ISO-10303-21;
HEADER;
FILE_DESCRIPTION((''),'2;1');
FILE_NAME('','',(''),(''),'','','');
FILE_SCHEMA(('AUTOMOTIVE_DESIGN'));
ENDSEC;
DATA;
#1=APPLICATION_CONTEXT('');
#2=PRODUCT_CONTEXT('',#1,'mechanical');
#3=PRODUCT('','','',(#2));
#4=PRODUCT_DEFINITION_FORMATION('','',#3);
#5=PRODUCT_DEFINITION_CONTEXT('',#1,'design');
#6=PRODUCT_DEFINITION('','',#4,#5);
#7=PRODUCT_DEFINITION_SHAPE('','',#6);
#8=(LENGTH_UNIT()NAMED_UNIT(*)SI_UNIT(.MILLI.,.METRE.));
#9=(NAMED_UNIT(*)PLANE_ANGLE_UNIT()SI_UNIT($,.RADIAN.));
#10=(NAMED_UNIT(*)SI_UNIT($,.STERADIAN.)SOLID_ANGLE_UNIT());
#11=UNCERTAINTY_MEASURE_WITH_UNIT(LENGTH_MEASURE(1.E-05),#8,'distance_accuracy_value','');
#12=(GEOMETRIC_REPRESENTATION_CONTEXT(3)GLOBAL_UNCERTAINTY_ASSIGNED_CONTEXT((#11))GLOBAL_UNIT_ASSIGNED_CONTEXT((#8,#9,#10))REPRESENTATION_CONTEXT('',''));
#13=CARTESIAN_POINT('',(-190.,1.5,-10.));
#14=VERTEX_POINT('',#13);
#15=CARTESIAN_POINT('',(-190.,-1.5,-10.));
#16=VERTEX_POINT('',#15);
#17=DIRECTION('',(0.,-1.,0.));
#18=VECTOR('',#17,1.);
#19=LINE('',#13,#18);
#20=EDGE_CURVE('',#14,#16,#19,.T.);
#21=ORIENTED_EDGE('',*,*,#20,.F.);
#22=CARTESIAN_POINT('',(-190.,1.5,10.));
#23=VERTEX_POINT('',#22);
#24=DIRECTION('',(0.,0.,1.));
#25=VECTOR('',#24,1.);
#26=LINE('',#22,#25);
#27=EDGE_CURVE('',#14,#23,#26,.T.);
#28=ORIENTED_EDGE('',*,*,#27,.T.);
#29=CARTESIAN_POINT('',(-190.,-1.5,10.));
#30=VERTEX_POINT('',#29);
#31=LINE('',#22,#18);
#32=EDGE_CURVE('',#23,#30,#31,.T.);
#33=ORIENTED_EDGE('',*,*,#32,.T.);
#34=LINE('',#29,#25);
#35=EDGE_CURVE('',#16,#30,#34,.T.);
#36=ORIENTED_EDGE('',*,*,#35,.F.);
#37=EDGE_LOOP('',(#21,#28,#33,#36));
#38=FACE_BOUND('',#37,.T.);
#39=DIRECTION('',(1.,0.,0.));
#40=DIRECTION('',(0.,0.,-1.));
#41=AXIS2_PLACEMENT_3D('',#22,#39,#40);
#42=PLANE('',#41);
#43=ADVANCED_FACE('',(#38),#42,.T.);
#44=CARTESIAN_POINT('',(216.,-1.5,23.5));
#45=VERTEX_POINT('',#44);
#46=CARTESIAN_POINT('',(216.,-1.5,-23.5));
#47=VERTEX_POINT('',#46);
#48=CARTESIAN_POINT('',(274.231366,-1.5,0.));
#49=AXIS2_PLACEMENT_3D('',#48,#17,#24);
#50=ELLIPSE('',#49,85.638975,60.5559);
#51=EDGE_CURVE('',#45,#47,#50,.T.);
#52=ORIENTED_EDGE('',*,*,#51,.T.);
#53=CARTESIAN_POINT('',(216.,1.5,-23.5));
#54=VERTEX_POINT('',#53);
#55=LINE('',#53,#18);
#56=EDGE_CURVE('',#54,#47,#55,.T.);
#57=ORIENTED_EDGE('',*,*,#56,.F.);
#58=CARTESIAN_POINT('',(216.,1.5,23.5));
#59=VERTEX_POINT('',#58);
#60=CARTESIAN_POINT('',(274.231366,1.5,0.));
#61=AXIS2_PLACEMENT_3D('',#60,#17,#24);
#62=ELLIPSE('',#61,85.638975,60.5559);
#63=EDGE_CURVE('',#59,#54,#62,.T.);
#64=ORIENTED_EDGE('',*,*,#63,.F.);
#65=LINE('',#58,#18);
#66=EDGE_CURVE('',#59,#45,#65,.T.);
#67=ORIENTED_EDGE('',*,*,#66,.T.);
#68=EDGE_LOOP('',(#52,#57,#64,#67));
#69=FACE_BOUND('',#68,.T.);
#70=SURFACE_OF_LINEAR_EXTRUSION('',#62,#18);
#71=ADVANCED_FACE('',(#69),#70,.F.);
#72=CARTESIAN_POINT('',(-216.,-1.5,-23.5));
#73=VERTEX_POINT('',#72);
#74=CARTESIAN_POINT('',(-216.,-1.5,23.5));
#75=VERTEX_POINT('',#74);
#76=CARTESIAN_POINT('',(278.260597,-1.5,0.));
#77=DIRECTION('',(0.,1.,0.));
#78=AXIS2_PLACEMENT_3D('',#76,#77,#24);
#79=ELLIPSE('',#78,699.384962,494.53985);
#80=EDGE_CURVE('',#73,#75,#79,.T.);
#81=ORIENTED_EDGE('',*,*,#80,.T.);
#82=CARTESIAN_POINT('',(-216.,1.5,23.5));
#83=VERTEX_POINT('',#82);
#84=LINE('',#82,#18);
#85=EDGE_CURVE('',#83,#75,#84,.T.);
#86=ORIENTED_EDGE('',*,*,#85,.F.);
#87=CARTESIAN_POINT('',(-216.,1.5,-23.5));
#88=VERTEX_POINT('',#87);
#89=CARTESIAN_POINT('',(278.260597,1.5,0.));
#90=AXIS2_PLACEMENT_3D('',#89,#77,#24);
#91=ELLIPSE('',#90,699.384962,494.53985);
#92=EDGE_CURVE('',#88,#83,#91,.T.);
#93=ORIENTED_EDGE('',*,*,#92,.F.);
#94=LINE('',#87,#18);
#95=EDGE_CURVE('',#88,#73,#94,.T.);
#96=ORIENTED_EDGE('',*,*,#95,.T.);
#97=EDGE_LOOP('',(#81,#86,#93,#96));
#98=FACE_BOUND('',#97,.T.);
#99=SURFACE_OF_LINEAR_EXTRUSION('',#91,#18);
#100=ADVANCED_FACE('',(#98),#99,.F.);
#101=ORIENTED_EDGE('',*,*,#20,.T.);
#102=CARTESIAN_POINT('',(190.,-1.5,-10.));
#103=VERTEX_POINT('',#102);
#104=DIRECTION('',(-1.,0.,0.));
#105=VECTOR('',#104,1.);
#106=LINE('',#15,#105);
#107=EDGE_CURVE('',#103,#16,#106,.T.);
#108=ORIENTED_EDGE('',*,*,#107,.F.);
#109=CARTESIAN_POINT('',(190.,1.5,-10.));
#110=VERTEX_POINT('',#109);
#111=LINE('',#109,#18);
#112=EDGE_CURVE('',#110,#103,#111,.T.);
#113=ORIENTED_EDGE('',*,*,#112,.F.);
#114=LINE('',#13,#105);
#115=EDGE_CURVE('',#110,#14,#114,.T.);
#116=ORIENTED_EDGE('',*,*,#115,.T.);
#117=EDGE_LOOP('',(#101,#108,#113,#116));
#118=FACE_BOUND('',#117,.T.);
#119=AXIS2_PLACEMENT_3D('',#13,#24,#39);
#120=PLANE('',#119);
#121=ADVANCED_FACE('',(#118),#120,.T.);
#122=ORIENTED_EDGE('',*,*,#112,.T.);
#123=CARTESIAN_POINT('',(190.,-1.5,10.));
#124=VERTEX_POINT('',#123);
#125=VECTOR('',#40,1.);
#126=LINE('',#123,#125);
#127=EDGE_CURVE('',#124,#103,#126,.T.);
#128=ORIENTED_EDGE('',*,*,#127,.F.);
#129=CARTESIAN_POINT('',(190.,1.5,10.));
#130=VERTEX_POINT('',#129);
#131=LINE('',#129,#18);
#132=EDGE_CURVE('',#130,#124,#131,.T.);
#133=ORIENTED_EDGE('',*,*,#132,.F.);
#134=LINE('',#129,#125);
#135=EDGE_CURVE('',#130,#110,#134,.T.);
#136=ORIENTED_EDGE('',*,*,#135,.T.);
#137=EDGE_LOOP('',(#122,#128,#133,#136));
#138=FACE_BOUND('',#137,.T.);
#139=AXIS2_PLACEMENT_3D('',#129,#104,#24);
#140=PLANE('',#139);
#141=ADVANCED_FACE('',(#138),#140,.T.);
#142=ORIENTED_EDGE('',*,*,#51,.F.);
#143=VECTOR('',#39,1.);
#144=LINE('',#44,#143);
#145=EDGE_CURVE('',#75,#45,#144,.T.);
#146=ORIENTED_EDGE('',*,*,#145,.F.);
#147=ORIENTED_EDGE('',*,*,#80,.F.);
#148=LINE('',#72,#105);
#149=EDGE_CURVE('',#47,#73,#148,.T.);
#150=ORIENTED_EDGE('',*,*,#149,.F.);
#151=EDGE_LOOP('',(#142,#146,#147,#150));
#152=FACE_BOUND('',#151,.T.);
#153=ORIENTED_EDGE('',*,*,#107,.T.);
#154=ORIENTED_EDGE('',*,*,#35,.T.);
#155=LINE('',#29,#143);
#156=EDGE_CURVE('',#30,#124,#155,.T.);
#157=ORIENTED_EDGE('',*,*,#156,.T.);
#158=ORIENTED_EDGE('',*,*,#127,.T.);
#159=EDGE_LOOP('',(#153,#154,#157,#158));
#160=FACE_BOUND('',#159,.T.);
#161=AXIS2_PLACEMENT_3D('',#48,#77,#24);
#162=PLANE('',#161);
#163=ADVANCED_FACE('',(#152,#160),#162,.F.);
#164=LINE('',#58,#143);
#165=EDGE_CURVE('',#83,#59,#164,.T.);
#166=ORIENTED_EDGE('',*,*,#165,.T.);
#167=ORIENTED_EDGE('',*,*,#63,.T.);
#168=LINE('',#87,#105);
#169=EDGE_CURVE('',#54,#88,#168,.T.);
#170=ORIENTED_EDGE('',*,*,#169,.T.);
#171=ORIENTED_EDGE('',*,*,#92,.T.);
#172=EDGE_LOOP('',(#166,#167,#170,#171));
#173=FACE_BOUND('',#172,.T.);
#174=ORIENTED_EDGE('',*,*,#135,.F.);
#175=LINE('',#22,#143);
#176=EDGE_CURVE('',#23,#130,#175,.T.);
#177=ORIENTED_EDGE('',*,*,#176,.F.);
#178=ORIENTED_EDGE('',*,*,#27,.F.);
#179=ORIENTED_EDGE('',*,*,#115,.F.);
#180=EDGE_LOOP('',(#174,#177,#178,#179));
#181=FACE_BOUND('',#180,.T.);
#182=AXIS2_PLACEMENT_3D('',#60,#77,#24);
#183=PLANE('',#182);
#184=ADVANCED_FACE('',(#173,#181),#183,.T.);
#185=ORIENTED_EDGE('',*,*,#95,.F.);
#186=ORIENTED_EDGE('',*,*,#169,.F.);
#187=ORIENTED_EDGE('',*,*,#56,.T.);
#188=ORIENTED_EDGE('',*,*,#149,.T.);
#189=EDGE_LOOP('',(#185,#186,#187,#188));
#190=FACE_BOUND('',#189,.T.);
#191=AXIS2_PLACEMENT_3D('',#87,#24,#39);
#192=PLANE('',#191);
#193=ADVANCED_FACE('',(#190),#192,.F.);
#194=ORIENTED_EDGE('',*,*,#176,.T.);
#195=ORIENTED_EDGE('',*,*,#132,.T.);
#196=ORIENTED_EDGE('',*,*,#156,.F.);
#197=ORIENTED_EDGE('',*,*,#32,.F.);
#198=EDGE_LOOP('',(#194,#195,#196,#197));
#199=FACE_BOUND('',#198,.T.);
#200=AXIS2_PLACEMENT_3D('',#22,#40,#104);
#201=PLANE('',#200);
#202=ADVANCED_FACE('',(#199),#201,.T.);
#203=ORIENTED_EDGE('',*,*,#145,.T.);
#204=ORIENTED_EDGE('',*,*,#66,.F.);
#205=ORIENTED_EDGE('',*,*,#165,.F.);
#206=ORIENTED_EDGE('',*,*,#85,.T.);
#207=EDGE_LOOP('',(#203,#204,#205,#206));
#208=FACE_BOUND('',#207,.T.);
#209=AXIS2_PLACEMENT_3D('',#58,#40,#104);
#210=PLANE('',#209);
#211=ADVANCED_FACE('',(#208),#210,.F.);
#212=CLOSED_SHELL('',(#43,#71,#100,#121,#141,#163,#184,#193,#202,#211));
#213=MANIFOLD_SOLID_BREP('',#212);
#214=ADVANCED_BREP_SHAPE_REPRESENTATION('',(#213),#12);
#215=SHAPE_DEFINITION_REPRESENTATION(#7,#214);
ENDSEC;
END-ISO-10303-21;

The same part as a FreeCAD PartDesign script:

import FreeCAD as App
import Part
import Sketcher
Q = App.Units.Quantity

doc = App.newDocument("Part")
body = doc.addObject("PartDesign::Body", "Body")

sketch1 = body.newObject("Sketcher::SketchObject", "Sketch")
sketch1.AttachmentSupport = (doc.getObject("XZ_Plane"), [""])
sketch1.MapMode = "FlatFace"
sketch1.addGeometry([
    Part.LineSegment(App.Vector(-216, 23.5, 0), App.Vector(216, 23.5, 0)),
    Part.BSplineCurve([App.Vector(216, -23.5, 0), App.Vector(211.25814, 0, 0), App.Vector(216, 23.5, 0)], [3, 3], [4.434415205, 4.990362756], False, 2, [1, 0.961613424, 1], False),
    Part.LineSegment(App.Vector(216, -23.5, 0), App.Vector(-216, -23.5, 0)),
    Part.BSplineCurve([App.Vector(-216, -23.5, 0), App.Vector(-216.558663, 0, 0), App.Vector(-216, 23.5, 0)], [3, 3], [4.678781703, 4.745996258], False, 2, [1, 0.999435329, 1], False),
    Part.LineSegment(App.Vector(-190, 10, 0), App.Vector(-190, -10, 0)),
    Part.LineSegment(App.Vector(-190, -10, 0), App.Vector(190, -10, 0)),
    Part.LineSegment(App.Vector(190, -10, 0), App.Vector(190, 10, 0)),
    Part.LineSegment(App.Vector(190, 10, 0), App.Vector(-190, 10, 0)),
], False)
sketch1.addConstraint([
    Sketcher.Constraint("Block", 1),
    Sketcher.Constraint("Block", 3),
    Sketcher.Constraint("Coincident", 0, 2, 1, 2),
    Sketcher.Constraint("Coincident", 1, 1, 2, 1),
    Sketcher.Constraint("Coincident", 2, 2, 3, 1),
    Sketcher.Constraint("Coincident", 3, 2, 0, 1),
    Sketcher.Constraint("Coincident", 4, 2, 5, 1),
    Sketcher.Constraint("Coincident", 5, 2, 6, 1),
    Sketcher.Constraint("Coincident", 6, 2, 7, 1),
    Sketcher.Constraint("Coincident", 7, 2, 4, 1),
    Sketcher.Constraint("Vertical", 4),
    Sketcher.Constraint("Horizontal", 5),
    Sketcher.Constraint("Vertical", 6),
    Sketcher.Constraint("Horizontal", 7),
    Sketcher.Constraint("Symmetric", 4, 2, 6, 2, -1, 1),
    Sketcher.Constraint("DistanceX", 5, 1, 5, 2, Q("380 mm")),
    Sketcher.Constraint("DistanceY", 4, 2, 4, 1, Q("20 mm")),
])
pad1 = body.newObject("PartDesign::Pad", "Pad")
pad1.Profile = sketch1
pad1.Length = 3
pad1.Midplane = True

doc.recompute()
